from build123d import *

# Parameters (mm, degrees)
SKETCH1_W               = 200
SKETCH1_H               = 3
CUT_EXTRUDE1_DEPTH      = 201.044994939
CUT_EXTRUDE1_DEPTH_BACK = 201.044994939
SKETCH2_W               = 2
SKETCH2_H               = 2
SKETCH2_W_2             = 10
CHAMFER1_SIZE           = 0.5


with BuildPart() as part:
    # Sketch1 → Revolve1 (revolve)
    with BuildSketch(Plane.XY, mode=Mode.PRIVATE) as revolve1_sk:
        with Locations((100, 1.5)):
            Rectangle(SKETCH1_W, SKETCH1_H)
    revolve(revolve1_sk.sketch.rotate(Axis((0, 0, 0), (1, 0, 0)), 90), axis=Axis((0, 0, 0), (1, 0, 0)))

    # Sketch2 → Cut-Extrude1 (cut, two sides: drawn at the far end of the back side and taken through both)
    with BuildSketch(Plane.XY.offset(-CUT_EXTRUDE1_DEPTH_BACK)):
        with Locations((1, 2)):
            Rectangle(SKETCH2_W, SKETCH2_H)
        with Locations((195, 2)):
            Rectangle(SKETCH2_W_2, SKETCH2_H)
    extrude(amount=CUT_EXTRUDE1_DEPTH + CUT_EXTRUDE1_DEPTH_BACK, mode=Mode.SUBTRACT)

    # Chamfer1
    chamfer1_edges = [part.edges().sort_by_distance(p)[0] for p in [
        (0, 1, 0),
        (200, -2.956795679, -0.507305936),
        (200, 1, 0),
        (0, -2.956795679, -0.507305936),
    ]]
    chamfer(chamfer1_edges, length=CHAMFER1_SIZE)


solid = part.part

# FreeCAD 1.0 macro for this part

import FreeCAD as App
import Part
import Sketcher


def edges_at(feature, points):
    """Names of the edges that pass closest to the given points."""
    edges = feature.Shape.Edges
    near = lambda p: min(range(len(edges)), key=lambda i: edges[i].distToShape(Part.Vertex(*p))[0])
    return sorted({f"Edge{near(p) + 1}" for p in points})

doc = App.newDocument("Part")
body = doc.addObject("PartDesign::Body", "Body")

# Sketch on XY plane
sketch1 = body.newObject("Sketcher::SketchObject", "Sketch")
sketch1.AttachmentSupport = (doc.getObject("XY_Plane"), [""])
sketch1.MapMode = "FlatFace"
sketch1.addGeometry([
    Part.LineSegment(App.Vector(0, 3, 0), App.Vector(0, 0, 0)),
    Part.LineSegment(App.Vector(0, 0, 0), App.Vector(200, 0, 0)),
    Part.LineSegment(App.Vector(200, 0, 0), App.Vector(200, 3, 0)),
    Part.LineSegment(App.Vector(200, 3, 0), App.Vector(0, 3, 0)),
], False)
sketch1.addConstraint([
    Sketcher.Constraint("Coincident", 0, 2, 1, 1),
    Sketcher.Constraint("Coincident", 1, 2, 2, 1),
    Sketcher.Constraint("Coincident", 2, 2, 3, 1),
    Sketcher.Constraint("Coincident", 3, 2, 0, 1),
    Sketcher.Constraint("Vertical", 0),
    Sketcher.Constraint("Horizontal", 1),
    Sketcher.Constraint("Vertical", 2),
    Sketcher.Constraint("Horizontal", 3),
    Sketcher.Constraint("Coincident", 0, 2, -1, 1),
    Sketcher.Constraint("DistanceX", 1, 1, 1, 2, 200.0),
    Sketcher.Constraint("DistanceY", 0, 2, 0, 1, 3.0),
])
revolution = body.newObject("PartDesign::Revolution", "Revolution")
revolution.Profile = sketch1
revolution.ReferenceAxis = (sketch1, ["H_Axis"])
revolution.Angle = 360

# Sketch on XY plane
sketch2 = body.newObject("Sketcher::SketchObject", "Sketch001")
sketch2.AttachmentSupport = (doc.getObject("XY_Plane"), [""])
sketch2.MapMode = "FlatFace"
sketch2.addGeometry([
    Part.LineSegment(App.Vector(0, 3, 0), App.Vector(0, 1, 0)),  # 0
    Part.LineSegment(App.Vector(0, 1, 0), App.Vector(2, 1, 0)),  # 1
    Part.LineSegment(App.Vector(2, 1, 0), App.Vector(2, 3, 0)),  # 2
    Part.LineSegment(App.Vector(2, 3, 0), App.Vector(0, 3, 0)),  # 3
    Part.LineSegment(App.Vector(190, 3, 0), App.Vector(190, 1, 0)),  # 4
    Part.LineSegment(App.Vector(190, 1, 0), App.Vector(200, 1, 0)),  # 5
    Part.LineSegment(App.Vector(200, 1, 0), App.Vector(200, 3, 0)),  # 6
    Part.LineSegment(App.Vector(200, 3, 0), App.Vector(190, 3, 0)),  # 7
], False)
sketch2.addConstraint([
    Sketcher.Constraint("Coincident", 0, 2, 1, 1),
    Sketcher.Constraint("Coincident", 1, 2, 2, 1),
    Sketcher.Constraint("Coincident", 2, 2, 3, 1),
    Sketcher.Constraint("Coincident", 3, 2, 0, 1),
    Sketcher.Constraint("Coincident", 4, 2, 5, 1),
    Sketcher.Constraint("Coincident", 5, 2, 6, 1),
    Sketcher.Constraint("Coincident", 6, 2, 7, 1),
    Sketcher.Constraint("Coincident", 7, 2, 4, 1),
    Sketcher.Constraint("Vertical", 0),
    Sketcher.Constraint("Horizontal", 1),
    Sketcher.Constraint("Vertical", 2),
    Sketcher.Constraint("Horizontal", 3),
    Sketcher.Constraint("Vertical", 4),
    Sketcher.Constraint("Horizontal", 5),
    Sketcher.Constraint("Vertical", 6),
    Sketcher.Constraint("Horizontal", 7),
    Sketcher.Constraint("PointOnObject", 0, 2, -2),
    Sketcher.Constraint("Horizontal", 1, 2, 4, 2),
    Sketcher.Constraint("Horizontal", 3, 2, 6, 2),
    Sketcher.Constraint("Equal", 3, 0),
    Sketcher.Constraint("DistanceX", 1, 1, 1, 2, 2.0),
    Sketcher.Constraint("DistanceX", 5, 1, 5, 2, 10.0),
    Sketcher.Constraint("DistanceY", -1, 1, 0, 2, 1.0),
    Sketcher.Constraint("DistanceX", -1, 1, 4, 2, 190.0),
])
pocket1 = body.newObject("PartDesign::Pocket", "Pocket")
pocket1.Profile = sketch2
pocket1.Type = "ThroughAll"
pocket1.Midplane = True
doc.recompute()

chamfer = body.newObject("PartDesign::Chamfer", "Chamfer")
chamfer.Base = (pocket1, edges_at(pocket1, [
    (0, 1, 0),
    (200, -2.957, -0.507),
    (200, 1, 0),
    (0, -2.957, -0.507),
]))
chamfer.Size = 0.5

doc.recompute()
